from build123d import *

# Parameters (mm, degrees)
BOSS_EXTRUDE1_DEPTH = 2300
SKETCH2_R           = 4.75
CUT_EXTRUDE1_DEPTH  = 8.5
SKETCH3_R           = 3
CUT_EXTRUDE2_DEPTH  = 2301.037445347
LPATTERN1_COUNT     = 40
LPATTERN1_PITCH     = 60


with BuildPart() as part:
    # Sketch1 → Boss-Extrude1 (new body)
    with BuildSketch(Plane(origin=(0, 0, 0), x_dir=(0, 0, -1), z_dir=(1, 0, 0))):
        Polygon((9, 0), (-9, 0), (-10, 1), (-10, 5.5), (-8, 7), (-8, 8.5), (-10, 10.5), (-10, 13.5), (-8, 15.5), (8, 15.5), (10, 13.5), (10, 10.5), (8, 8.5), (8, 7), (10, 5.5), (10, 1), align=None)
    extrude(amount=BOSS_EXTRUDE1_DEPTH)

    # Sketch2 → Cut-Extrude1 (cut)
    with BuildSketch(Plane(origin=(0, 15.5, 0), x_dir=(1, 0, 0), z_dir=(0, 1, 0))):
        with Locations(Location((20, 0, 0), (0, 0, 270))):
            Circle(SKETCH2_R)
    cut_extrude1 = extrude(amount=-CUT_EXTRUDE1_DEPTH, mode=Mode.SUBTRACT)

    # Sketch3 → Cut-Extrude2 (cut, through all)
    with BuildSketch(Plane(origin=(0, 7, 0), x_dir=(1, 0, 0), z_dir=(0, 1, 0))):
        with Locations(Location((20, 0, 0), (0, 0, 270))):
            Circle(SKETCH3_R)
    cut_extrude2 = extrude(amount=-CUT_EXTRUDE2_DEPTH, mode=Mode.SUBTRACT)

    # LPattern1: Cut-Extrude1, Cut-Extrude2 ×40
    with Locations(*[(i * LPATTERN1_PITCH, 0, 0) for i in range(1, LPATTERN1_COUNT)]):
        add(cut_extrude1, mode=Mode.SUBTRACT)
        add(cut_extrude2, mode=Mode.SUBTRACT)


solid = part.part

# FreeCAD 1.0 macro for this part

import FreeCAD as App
import Part
import Sketcher
from FreeCAD import Vector


def add_polygon(sketch, points):
    """Adds a closed chain of lines whose ends are joined by coincident constraints."""
    first, n = sketch.GeometryCount, len(points)
    for a, b in zip(points, points[1:] + points[:1]):
        sketch.addGeometry(Part.LineSegment(App.Vector(*a, 0), App.Vector(*b, 0)), False)
    for i in range(n):
        sketch.addConstraint(Sketcher.Constraint("Coincident", first + i, 2, first + (i + 1) % n, 1))

doc = App.newDocument("Part")
body = doc.addObject("PartDesign::Body", "Body")

# Sketch on YZ plane
sketch1 = body.newObject("Sketcher::SketchObject", "Sketch")
sketch1.AttachmentSupport = (doc.getObject("YZ_Plane"), [""])
sketch1.MapMode = "FlatFace"
add_polygon(sketch1, [(0, 9), (0, -9), (1, -10), (5.5, -10), (7, -8), (8.5, -8), (10.5, -10), (13.5, -10), (15.5, -8), (15.5, 8), (13.5, 10), (10.5, 10), (8.5, 8), (7, 8), (5.5, 10), (1, 10)])  # lines 0-15
sketch1.addConstraint([
    Sketcher.Constraint("Vertical", 0),
    Sketcher.Constraint("Horizontal", 2),
    Sketcher.Constraint("Horizontal", 4),
    Sketcher.Constraint("Horizontal", 6),
    Sketcher.Constraint("Vertical", 8),
    Sketcher.Constraint("Horizontal", 10),
    Sketcher.Constraint("Horizontal", 12),
    Sketcher.Constraint("Horizontal", 14),
    Sketcher.Constraint("Symmetric", 0, 2, 15, 2, -1, 1),
    Sketcher.Constraint("Symmetric", 6, 2, 9, 2, -1),
    Sketcher.Constraint("Symmetric", 4, 2, 11, 2, -1),
    Sketcher.Constraint("Symmetric", 2, 2, 13, 2, -1),
    Sketcher.Constraint("Parallel", 1, 5),
    Sketcher.Constraint("Perpendicular", 5, 7),
    Sketcher.Constraint("Perpendicular", 7, 9),
    Sketcher.Constraint("Perpendicular", 9, 11),
    Sketcher.Constraint("Parallel", 11, 15),
    Sketcher.Constraint("Horizontal", 2, 2, 5, 2),
    Sketcher.Constraint("Horizontal", 4, 2, 7, 2),
    Sketcher.Constraint("Horizontal", 8, 2, 11, 2),
    Sketcher.Constraint("Vertical", 3, 2, 12, 2),
    Sketcher.Constraint("DistanceX", 6, 1, 6, 2, 3.0),
    Sketcher.Constraint("DistanceY", 0, 2, 0, 1, 18.0),
    Sketcher.Constraint("DistanceY", 8, 1, 8, 2, 16.0),
    Sketcher.Constraint("DistanceX", 2, 1, 2, 2, 4.5),
    Sketcher.Constraint("DistanceX", 4, 1, 4, 2, 1.5),
    Sketcher.Constraint("DistanceX", -1, 1, 1, 2, 1.0),
    Sketcher.Constraint("DistanceX", -1, 1, 3, 2, 7.0),
])
pad1 = body.newObject("PartDesign::Pad", "Pad")
pad1.Profile = sketch1
pad1.Length = 2300

# Sketch on XZ plane
sketch2 = body.newObject("Sketcher::SketchObject", "Sketch001")
sketch2.AttachmentSupport = (doc.getObject("XZ_Plane"), [""])
sketch2.MapMode = "FlatFace"
sketch2.AttachmentOffset = App.Placement(Vector(0, 0, -15.5), App.Rotation())
sketch2.addGeometry(Part.Circle(Vector(20, 0, 0), Vector(0, 0, 1), 4.75), False)
sketch2.addConstraint([
    Sketcher.Constraint("PointOnObject", 0, 3, -1),
    Sketcher.Constraint("Diameter", 0, 9.5),
    Sketcher.Constraint("DistanceX", -1, 1, 0, 3, 20.0),
])
pocket1 = body.newObject("PartDesign::Pocket", "Pocket")
pocket1.Profile = sketch2
pocket1.Length = 8.5
pocket1.Reversed = True

# Sketch on XZ plane
sketch3 = body.newObject("Sketcher::SketchObject", "Sketch002")
sketch3.AttachmentSupport = (doc.getObject("XZ_Plane"), [""])
sketch3.MapMode = "FlatFace"
sketch3.AttachmentOffset = App.Placement(Vector(0, 0, -7), App.Rotation())
sketch3.addGeometry(Part.Circle(Vector(20, 0, 0), Vector(0, 0, 1), 3), False)
sketch3.addConstraint([
    Sketcher.Constraint("PointOnObject", 0, 3, -1),
    Sketcher.Constraint("Diameter", 0, 6.0),
    Sketcher.Constraint("DistanceX", -1, 1, 0, 3, 20.0),
])
pocket2 = body.newObject("PartDesign::Pocket", "Pocket001")
pocket2.Profile = sketch3
pocket2.Type = "ThroughAll"
pocket2.Reversed = True
doc.recompute()

linearpattern = body.newObject("PartDesign::LinearPattern", "LinearPattern")
linearpattern.Originals = [pocket1, pocket2]
linearpattern.Direction = (doc.getObject("X_Axis"), [""])
linearpattern.Mode = "offset"
linearpattern.Offset = 60
linearpattern.Occurrences = 40
body.Tip = linearpattern

doc.recompute()
